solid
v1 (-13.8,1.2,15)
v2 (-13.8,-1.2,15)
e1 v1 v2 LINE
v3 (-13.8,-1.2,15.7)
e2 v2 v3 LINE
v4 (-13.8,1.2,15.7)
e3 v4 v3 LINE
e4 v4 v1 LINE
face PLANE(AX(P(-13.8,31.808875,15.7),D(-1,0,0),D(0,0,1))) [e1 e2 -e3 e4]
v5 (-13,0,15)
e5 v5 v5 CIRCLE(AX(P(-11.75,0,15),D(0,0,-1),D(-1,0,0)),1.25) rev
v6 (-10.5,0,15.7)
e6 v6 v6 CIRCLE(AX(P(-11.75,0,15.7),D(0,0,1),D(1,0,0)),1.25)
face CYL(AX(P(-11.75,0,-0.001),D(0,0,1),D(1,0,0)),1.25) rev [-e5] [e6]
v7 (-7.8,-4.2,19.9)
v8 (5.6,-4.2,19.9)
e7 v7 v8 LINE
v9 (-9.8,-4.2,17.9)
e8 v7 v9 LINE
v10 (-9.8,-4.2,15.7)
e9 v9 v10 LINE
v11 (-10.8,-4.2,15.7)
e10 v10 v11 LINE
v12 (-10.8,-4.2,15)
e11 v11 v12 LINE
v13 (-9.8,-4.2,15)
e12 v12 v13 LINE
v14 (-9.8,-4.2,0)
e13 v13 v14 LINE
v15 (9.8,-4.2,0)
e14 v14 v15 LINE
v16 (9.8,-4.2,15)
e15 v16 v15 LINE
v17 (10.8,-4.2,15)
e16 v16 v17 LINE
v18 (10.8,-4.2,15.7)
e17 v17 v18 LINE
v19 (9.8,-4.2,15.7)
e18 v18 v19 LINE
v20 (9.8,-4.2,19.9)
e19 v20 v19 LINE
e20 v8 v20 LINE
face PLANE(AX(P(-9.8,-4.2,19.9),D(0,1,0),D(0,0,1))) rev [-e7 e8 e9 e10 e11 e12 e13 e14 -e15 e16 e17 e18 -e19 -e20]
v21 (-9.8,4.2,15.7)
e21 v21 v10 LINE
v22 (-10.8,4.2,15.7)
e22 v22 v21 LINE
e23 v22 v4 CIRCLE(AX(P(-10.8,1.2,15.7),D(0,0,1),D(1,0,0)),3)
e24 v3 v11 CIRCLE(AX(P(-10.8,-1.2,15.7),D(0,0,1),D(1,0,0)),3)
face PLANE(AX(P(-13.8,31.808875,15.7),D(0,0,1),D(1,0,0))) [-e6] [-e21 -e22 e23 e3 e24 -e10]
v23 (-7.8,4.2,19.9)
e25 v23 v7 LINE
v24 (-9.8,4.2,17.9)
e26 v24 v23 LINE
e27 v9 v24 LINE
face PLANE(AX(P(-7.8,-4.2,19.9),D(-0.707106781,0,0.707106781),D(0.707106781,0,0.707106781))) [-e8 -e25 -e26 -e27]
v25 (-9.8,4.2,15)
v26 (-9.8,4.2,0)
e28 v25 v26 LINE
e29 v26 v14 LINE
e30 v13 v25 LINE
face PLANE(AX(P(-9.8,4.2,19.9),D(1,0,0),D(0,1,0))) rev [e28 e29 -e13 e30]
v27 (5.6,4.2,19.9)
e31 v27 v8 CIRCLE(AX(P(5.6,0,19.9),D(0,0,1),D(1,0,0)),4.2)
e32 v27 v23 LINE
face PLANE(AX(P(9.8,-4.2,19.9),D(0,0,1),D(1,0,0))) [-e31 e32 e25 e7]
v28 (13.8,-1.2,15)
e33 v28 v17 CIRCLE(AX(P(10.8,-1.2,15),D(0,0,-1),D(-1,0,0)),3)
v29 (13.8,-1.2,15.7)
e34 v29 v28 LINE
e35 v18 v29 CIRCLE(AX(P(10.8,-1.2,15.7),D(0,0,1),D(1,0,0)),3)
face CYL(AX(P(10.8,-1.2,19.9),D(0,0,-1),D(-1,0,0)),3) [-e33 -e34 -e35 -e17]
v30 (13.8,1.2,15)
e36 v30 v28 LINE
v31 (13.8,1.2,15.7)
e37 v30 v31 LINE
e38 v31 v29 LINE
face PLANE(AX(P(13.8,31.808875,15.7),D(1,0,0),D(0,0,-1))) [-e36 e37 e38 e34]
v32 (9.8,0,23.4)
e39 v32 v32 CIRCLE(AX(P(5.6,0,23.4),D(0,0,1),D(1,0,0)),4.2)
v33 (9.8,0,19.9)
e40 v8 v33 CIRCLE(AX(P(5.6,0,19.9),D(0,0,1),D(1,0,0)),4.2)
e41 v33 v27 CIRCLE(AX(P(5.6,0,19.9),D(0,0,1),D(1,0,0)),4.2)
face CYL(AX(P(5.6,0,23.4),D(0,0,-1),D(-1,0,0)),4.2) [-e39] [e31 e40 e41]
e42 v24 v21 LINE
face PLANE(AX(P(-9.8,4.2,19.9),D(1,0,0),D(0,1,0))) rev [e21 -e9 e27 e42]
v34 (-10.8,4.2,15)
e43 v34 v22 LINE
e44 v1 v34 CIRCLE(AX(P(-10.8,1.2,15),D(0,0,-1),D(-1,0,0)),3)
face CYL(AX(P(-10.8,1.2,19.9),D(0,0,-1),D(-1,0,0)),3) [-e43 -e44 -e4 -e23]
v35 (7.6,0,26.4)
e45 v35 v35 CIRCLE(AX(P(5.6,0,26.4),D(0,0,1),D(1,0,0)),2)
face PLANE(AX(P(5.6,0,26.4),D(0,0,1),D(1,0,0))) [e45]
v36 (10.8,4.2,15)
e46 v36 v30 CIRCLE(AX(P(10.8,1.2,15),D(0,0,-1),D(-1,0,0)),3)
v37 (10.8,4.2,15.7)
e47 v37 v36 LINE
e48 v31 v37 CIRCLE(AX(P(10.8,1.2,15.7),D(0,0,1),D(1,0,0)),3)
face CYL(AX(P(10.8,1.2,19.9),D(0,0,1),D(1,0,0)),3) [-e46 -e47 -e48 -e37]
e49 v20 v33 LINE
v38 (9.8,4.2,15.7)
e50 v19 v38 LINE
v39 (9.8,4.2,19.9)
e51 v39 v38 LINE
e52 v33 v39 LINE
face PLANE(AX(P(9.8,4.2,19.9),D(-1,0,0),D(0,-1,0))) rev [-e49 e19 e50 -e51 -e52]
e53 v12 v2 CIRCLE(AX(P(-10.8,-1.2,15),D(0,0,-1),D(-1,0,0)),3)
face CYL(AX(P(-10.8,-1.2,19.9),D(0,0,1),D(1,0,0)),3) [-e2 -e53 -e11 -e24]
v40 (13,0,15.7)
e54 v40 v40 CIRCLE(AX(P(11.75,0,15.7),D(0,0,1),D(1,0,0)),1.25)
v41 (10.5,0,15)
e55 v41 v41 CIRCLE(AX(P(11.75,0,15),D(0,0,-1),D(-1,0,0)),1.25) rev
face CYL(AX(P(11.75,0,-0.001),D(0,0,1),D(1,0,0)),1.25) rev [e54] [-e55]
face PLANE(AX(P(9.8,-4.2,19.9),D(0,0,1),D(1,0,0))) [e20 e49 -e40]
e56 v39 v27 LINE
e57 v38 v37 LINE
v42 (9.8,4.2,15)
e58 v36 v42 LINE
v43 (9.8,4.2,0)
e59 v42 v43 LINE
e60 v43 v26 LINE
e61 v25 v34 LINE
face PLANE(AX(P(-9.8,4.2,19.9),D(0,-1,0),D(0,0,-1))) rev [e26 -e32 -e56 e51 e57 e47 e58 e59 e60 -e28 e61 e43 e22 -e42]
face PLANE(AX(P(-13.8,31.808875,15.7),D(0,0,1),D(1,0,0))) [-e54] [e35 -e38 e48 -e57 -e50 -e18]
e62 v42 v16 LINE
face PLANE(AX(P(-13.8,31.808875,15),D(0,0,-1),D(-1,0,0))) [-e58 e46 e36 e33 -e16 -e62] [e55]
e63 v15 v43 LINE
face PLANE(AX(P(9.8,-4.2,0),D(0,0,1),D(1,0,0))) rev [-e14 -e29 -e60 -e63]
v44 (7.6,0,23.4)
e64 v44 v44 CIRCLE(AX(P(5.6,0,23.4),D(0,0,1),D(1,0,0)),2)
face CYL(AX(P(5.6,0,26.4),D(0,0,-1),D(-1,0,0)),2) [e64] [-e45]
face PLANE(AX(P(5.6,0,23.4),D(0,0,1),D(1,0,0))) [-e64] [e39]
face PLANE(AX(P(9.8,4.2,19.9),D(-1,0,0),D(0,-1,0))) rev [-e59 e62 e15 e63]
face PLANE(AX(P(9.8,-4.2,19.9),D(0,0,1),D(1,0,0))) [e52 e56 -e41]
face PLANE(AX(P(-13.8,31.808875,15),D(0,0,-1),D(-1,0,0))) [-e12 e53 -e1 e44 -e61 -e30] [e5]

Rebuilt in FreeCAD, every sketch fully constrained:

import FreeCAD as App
import Part
import Sketcher
Q = App.Units.Quantity


def edges_at(feature, points):
    """Names of the edges that pass closest to the given points."""
    edges = feature.Shape.Edges
    near = lambda p: min(range(len(edges)), key=lambda i: edges[i].distToShape(Part.Vertex(*p))[0])
    return sorted({f"Edge{near(p) + 1}" for p in points})

doc = App.newDocument("Part")
params = doc.addObject("Spreadsheet::Sheet", "Params")
for row, (alias, value) in enumerate([
    ("sketch1_width", "19.6 mm"),
    ("sketch1_height", "8.4 mm"),
    ("pad1_length", "19.9 mm"),
    ("chamfer_size", "2 mm"),
    ("sketch2_width", "27.6 mm"),
    ("sketch2_height", "0.7 mm"),
    ("pad2_length", "8.4 mm"),
    ("fillet_radius", "3 mm"),
    ("sketch3_diameter", "2.5 mm"),
    ("sketch4_diameter", "2.5 mm"),
    ("sketch5_diameter", "8.4 mm"),
    ("pad3_length", "3.5 mm"),
    ("sketch6_diameter", "4 mm"),
    ("pad4_length", "3 mm"),
], start=1):
    params.set(f"A{row}", alias)
    params.set(f"B{row}", "=" + value)
    params.setAlias(f"B{row}", alias)

body = doc.addObject("PartDesign::Body", "Body")

# Sketch on XY plane
sketch1 = body.newObject("Sketcher::SketchObject", "Sketch")
sketch1.AttachmentSupport = (doc.getObject("XY_Plane"), [""])
sketch1.MapMode = "FlatFace"
sketch1.addGeometry(Part.LineSegment(App.Vector(-10, 4, 0), App.Vector(-10, -4, 0)), False)
sketch1.addGeometry(Part.LineSegment(App.Vector(-10, -4, 0), App.Vector(10, -4, 0)), False)
sketch1.addGeometry(Part.LineSegment(App.Vector(10, -4, 0), App.Vector(10, 4, 0)), False)
sketch1.addGeometry(Part.LineSegment(App.Vector(10, 4, 0), App.Vector(-10, 4, 0)), False)
sketch1.addConstraint(Sketcher.Constraint("Coincident", 0, 2, 1, 1))
sketch1.addConstraint(Sketcher.Constraint("Coincident", 1, 2, 2, 1))
sketch1.addConstraint(Sketcher.Constraint("Coincident", 2, 2, 3, 1))
sketch1.addConstraint(Sketcher.Constraint("Coincident", 3, 2, 0, 1))
sketch1.addConstraint(Sketcher.Constraint("Vertical", 0))
sketch1.addConstraint(Sketcher.Constraint("Horizontal", 1))
sketch1.addConstraint(Sketcher.Constraint("Vertical", 2))
sketch1.addConstraint(Sketcher.Constraint("Horizontal", 3))
sketch1.addConstraint(Sketcher.Constraint("Symmetric", 0, 2, 2, 2, -1, 1))
sketch1.addConstraint(Sketcher.Constraint("DistanceX", 1, 1, 1, 2, Q("19.6 mm")))
sketch1.addConstraint(Sketcher.Constraint("DistanceY", 0, 2, 0, 1, Q("8.4 mm")))
sketch1.setExpression("Constraints[9]", "Params.sketch1_width")
sketch1.setExpression("Constraints[10]", "Params.sketch1_height")
pad1 = body.newObject("PartDesign::Pad", "Pad")
pad1.Profile = sketch1
pad1.setExpression("Length", "Params.pad1_length")
doc.recompute()

chamfer = body.newObject("PartDesign::Chamfer", "Chamfer")
chamfer.Base = (pad1, edges_at(pad1, [(-9.8, 0, 19.9)]))
chamfer.setExpression("Size", "Params.chamfer_size")

# Sketch on XZ plane
sketch2 = body.newObject("Sketcher::SketchObject", "Sketch001")
sketch2.AttachmentSupport = (doc.getObject("XZ_Plane"), [""])
sketch2.MapMode = "FlatFace"
sketch2.AttachmentOffset = App.Placement(App.Vector(0, 0, 4.2), App.Rotation())
sketch2.addGeometry(Part.LineSegment(App.Vector(-13.8, 15.7, 0), App.Vector(-13.8, 15, 0)), False)
sketch2.addGeometry(Part.LineSegment(App.Vector(-13.8, 15, 0), App.Vector(13.8, 15, 0)), False)
sketch2.addGeometry(Part.LineSegment(App.Vector(13.8, 15, 0), App.Vector(13.8, 15.7, 0)), False)
sketch2.addGeometry(Part.LineSegment(App.Vector(13.8, 15.7, 0), App.Vector(-13.8, 15.7, 0)), False)
sketch2.addConstraint(Sketcher.Constraint("Coincident", 0, 2, 1, 1))
sketch2.addConstraint(Sketcher.Constraint("Coincident", 1, 2, 2, 1))
sketch2.addConstraint(Sketcher.Constraint("Coincident", 2, 2, 3, 1))
sketch2.addConstraint(Sketcher.Constraint("Coincident", 3, 2, 0, 1))
sketch2.addConstraint(Sketcher.Constraint("Vertical", 0))
sketch2.addConstraint(Sketcher.Constraint("Horizontal", 1))
sketch2.addConstraint(Sketcher.Constraint("Vertical", 2))
sketch2.addConstraint(Sketcher.Constraint("Horizontal", 3))
sketch2.addConstraint(Sketcher.Constraint("DistanceX", 1, 1, 1, 2, Q("27.6 mm")))
sketch2.addConstraint(Sketcher.Constraint("DistanceY", 0, 2, 0, 1, Q("0.7 mm")))
sketch2.addConstraint(Sketcher.Constraint("DistanceY", -1, 1, 0, 2, Q("15 mm")))
sketch2.addConstraint(Sketcher.Constraint("DistanceX", 0, 2, -1, 1, Q("13.8 mm")))
sketch2.setExpression("Constraints[8]", "Params.sketch2_width")
sketch2.setExpression("Constraints[9]", "Params.sketch2_height")
pad2 = body.newObject("PartDesign::Pad", "Pad001")
pad2.Profile = sketch2
pad2.setExpression("Length", "Params.pad2_length")
pad2.Reversed = True
doc.recompute()

fillet = body.newObject("PartDesign::Fillet", "Fillet")
fillet.Base = (pad2, edges_at(pad2, [
    (13.8, -4.2, 15.35),
    (-13.8, -4.2, 15.35),
    (13.8, 4.2, 15.35),
    (-13.8, 4.2, 15.35),
]))
fillet.setExpression("Radius", "Params.fillet_radius")

# Sketch on XY plane
sketch3 = body.newObject("Sketcher::SketchObject", "Sketch002")
sketch3.AttachmentSupport = (doc.getObject("XY_Plane"), [""])
sketch3.MapMode = "FlatFace"
sketch3.AttachmentOffset = App.Placement(App.Vector(0, 0, 15.7), App.Rotation())
sketch3.addGeometry(Part.Circle(App.Vector(-11.8, 0, 0), App.Vector(0, 0, 1), 1.2), False)
sketch3.addConstraint(Sketcher.Constraint("PointOnObject", 0, 3, -1))
sketch3.addConstraint(Sketcher.Constraint("Diameter", 0, Q("2.5 mm")))
sketch3.addConstraint(Sketcher.Constraint("DistanceX", 0, 3, -1, 1, Q("11.75 mm")))
sketch3.setExpression("Constraints[1]", "Params.sketch3_diameter")
pocket1 = body.newObject("PartDesign::Pocket", "Pocket")
pocket1.Profile = sketch3
pocket1.Type = "UpToFirst"

# Sketch on XY plane
sketch4 = body.newObject("Sketcher::SketchObject", "Sketch003")
sketch4.AttachmentSupport = (doc.getObject("XY_Plane"), [""])
sketch4.MapMode = "FlatFace"
sketch4.AttachmentOffset = App.Placement(App.Vector(0, 0, 15.7), App.Rotation())
sketch4.addGeometry(Part.Circle(App.Vector(11.8, 0, 0), App.Vector(0, 0, 1), 1.2), False)
sketch4.addConstraint(Sketcher.Constraint("PointOnObject", 0, 3, -1))
sketch4.addConstraint(Sketcher.Constraint("Diameter", 0, Q("2.5 mm")))
sketch4.addConstraint(Sketcher.Constraint("DistanceX", -1, 1, 0, 3, Q("11.75 mm")))
sketch4.setExpression("Constraints[1]", "Params.sketch4_diameter")
pocket2 = body.newObject("PartDesign::Pocket", "Pocket001")
pocket2.Profile = sketch4
pocket2.Type = "UpToFirst"

# Sketch on XY plane
sketch5 = body.newObject("Sketcher::SketchObject", "Sketch004")
sketch5.AttachmentSupport = (doc.getObject("XY_Plane"), [""])
sketch5.MapMode = "FlatFace"
sketch5.AttachmentOffset = App.Placement(App.Vector(0, 0, 19.9), App.Rotation())
sketch5.addGeometry(Part.Circle(App.Vector(5.6, 0, 0), App.Vector(0, 0, 1), 4.2), False)
sketch5.addConstraint(Sketcher.Constraint("PointOnObject", 0, 3, -1))
sketch5.addConstraint(Sketcher.Constraint("Diameter", 0, Q("8.4 mm")))
sketch5.addConstraint(Sketcher.Constraint("DistanceX", -1, 1, 0, 3, Q("5.6 mm")))
sketch5.setExpression("Constraints[1]", "Params.sketch5_diameter")
pad3 = body.newObject("PartDesign::Pad", "Pad002")
pad3.Profile = sketch5
pad3.setExpression("Length", "Params.pad3_length")

# Sketch on XY plane
sketch6 = body.newObject("Sketcher::SketchObject", "Sketch005")
sketch6.AttachmentSupport = (doc.getObject("XY_Plane"), [""])
sketch6.MapMode = "FlatFace"
sketch6.AttachmentOffset = App.Placement(App.Vector(0, 0, 23.4), App.Rotation())
sketch6.addGeometry(Part.Circle(App.Vector(5.6, 0, 0), App.Vector(0, 0, 1), 2), False)
sketch6.addConstraint(Sketcher.Constraint("PointOnObject", 0, 3, -1))
sketch6.addConstraint(Sketcher.Constraint("Diameter", 0, Q("4 mm")))
sketch6.addConstraint(Sketcher.Constraint("DistanceX", -1, 1, 0, 3, Q("5.6 mm")))
sketch6.setExpression("Constraints[1]", "Params.sketch6_diameter")
pad4 = body.newObject("PartDesign::Pad", "Pad003")
pad4.Profile = sketch6
pad4.setExpression("Length", "Params.pad4_length")

doc.recompute()
